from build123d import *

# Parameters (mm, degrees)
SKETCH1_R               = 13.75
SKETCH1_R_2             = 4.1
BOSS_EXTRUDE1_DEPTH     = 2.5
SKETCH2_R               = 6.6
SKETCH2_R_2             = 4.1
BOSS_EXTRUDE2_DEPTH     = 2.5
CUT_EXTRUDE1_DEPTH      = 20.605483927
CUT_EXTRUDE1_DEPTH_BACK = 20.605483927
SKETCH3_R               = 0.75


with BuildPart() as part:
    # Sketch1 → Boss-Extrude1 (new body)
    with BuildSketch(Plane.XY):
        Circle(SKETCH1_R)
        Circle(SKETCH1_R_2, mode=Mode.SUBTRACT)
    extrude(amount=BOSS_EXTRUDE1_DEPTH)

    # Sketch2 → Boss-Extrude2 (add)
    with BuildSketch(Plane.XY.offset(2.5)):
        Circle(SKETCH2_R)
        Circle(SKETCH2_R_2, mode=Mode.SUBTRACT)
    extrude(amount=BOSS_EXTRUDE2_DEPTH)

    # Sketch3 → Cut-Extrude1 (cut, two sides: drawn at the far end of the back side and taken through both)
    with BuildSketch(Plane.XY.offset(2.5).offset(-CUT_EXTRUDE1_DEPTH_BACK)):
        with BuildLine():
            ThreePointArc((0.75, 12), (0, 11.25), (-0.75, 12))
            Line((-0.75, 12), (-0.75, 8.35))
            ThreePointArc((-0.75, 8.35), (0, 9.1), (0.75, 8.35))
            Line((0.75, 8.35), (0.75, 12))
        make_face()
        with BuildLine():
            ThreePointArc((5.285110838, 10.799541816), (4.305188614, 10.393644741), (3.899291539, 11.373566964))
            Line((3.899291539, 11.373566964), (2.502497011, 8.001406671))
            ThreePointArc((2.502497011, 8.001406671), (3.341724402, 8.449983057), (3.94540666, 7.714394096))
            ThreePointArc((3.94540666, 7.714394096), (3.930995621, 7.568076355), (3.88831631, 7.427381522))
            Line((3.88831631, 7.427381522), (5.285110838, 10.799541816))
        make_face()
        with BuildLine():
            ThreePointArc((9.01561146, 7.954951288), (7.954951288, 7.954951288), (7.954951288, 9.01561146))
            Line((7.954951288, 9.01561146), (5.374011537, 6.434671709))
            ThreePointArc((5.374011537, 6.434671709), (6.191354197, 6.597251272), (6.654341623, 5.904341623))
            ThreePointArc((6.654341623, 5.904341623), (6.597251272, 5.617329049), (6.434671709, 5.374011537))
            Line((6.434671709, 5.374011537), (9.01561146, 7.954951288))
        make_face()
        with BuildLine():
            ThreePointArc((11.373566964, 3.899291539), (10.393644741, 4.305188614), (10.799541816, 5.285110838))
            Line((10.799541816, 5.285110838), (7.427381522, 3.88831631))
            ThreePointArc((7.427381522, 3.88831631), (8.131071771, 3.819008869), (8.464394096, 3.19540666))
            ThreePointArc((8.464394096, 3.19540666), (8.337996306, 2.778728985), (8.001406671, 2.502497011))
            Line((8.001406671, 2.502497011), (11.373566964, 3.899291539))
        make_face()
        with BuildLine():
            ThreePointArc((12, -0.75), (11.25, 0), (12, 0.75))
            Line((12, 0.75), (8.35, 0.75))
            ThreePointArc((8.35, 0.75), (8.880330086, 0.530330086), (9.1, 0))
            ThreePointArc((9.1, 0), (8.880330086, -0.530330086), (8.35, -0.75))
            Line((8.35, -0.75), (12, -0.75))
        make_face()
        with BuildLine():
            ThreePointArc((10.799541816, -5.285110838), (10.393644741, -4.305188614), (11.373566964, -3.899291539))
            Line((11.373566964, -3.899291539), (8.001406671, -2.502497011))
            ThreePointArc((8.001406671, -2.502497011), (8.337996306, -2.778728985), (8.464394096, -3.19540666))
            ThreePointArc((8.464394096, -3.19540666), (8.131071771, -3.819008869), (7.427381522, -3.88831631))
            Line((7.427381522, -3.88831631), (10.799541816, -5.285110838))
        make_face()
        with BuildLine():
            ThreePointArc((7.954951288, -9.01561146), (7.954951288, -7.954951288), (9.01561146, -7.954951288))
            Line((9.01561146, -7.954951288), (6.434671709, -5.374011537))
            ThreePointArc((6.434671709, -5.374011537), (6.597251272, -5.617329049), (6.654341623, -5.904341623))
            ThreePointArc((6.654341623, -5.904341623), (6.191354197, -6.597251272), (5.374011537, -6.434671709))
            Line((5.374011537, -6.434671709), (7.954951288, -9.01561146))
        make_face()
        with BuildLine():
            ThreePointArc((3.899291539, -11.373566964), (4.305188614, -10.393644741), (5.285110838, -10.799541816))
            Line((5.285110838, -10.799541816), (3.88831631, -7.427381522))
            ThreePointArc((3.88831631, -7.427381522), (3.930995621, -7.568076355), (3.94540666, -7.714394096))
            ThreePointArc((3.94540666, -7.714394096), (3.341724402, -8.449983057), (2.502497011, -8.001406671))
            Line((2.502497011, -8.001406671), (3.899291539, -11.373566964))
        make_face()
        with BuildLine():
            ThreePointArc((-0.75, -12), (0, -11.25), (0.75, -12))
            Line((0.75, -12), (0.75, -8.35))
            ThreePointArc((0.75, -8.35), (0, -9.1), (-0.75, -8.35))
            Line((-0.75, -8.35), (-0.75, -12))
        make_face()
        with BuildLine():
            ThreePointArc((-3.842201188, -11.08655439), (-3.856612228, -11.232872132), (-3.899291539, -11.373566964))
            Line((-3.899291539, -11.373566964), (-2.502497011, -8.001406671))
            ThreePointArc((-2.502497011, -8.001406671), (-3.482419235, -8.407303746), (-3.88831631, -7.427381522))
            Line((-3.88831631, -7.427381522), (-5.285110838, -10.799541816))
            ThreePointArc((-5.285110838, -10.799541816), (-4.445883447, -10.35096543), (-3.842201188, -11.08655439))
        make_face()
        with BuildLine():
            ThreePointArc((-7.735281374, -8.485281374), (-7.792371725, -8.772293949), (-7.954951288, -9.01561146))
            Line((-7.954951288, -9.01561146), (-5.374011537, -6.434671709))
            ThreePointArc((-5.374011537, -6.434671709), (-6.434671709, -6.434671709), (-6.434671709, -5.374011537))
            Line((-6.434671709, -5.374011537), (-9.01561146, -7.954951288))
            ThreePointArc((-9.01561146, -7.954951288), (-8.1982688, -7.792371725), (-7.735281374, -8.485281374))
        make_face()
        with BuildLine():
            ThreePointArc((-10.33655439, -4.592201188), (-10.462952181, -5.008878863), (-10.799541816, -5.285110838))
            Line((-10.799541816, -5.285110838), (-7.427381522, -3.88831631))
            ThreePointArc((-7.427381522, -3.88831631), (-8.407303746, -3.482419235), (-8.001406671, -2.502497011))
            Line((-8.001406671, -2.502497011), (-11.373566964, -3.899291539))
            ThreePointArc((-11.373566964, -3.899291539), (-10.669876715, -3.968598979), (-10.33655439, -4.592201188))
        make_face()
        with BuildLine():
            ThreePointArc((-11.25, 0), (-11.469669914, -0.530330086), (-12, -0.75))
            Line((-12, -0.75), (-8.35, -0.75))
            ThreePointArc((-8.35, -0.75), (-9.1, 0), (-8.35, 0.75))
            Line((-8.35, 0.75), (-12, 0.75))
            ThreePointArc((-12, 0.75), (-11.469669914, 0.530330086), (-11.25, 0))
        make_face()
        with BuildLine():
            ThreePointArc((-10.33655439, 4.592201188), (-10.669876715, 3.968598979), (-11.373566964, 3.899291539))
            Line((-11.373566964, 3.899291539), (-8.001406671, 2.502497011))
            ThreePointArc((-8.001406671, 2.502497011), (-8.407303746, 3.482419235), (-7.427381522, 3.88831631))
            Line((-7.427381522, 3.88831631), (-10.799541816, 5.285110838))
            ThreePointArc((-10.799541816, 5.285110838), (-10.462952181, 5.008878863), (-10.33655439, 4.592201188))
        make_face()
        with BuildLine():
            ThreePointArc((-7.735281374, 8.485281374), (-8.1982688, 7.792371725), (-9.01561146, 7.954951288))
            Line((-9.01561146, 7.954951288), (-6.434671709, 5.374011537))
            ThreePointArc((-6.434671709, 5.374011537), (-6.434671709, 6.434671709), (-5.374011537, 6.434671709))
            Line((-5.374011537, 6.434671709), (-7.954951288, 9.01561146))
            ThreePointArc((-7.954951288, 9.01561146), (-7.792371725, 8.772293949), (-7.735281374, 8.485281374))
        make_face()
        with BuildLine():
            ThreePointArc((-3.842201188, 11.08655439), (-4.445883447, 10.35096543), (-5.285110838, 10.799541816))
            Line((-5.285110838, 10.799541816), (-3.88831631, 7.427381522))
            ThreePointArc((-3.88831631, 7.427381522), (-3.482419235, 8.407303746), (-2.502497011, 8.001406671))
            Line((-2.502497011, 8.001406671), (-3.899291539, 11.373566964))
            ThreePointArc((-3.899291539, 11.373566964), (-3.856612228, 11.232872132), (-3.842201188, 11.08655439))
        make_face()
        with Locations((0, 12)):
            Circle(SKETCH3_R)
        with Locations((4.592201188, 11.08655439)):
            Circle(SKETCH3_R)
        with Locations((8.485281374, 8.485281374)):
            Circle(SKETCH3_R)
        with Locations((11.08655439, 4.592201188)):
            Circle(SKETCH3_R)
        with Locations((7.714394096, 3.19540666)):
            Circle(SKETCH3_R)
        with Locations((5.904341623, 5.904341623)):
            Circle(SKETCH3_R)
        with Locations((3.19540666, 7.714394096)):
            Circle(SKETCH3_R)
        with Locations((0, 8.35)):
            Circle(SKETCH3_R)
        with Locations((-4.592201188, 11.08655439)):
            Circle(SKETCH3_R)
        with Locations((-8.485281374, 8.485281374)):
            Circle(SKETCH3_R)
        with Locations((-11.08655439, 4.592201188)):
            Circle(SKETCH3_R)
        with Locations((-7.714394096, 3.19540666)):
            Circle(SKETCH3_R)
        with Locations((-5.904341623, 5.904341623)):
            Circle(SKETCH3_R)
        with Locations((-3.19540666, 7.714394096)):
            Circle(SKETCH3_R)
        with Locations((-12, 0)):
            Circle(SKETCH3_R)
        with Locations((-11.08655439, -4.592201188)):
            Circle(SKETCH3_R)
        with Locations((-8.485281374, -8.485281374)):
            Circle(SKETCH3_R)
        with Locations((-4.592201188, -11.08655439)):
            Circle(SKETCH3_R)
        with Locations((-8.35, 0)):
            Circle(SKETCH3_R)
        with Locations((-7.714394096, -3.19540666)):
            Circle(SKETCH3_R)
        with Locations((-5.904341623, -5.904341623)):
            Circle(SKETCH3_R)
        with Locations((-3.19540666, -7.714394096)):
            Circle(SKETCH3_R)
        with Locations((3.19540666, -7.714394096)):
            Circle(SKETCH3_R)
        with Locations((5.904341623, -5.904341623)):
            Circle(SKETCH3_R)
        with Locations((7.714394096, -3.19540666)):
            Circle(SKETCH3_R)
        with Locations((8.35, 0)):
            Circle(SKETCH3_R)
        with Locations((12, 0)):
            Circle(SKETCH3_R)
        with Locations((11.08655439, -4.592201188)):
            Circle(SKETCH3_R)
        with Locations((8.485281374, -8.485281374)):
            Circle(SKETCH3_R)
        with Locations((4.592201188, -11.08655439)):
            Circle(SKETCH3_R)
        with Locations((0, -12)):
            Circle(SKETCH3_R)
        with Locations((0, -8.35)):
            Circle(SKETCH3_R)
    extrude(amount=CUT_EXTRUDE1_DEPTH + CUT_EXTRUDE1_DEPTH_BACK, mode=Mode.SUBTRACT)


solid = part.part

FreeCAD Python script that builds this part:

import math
import FreeCAD as App
import Part
import Sketcher
from FreeCAD import Vector
Q = App.Units.Quantity

doc = App.newDocument("Part")
body = doc.addObject("PartDesign::Body", "Body")

# Sketch on XY plane
sketch1 = body.newObject("Sketcher::SketchObject", "Sketch")
sketch1.AttachmentSupport = (doc.getObject("XY_Plane"), [""])
sketch1.MapMode = "FlatFace"
sketch1.addGeometry(Part.Circle(Vector(0, 0, 0), Vector(0, 0, 1), 13.8), False)
sketch1.addGeometry(Part.Circle(Vector(0, 0, 0), Vector(0, 0, 1), 4.1), False)
sketch1.addConstraint(Sketcher.Constraint("Coincident", 0, 3, -1, 1))
sketch1.addConstraint(Sketcher.Constraint("Coincident", 1, 3, -1, 1))
sketch1.addConstraint(Sketcher.Constraint("Diameter", 0, 27.5))
sketch1.addConstraint(Sketcher.Constraint("Diameter", 1, 8.2))
pad1 = body.newObject("PartDesign::Pad", "Pad")
pad1.Profile = sketch1
pad1.Length = 2.5

# Sketch on XY plane
sketch2 = body.newObject("Sketcher::SketchObject", "Sketch001")
sketch2.AttachmentSupport = (doc.getObject("XY_Plane"), [""])
sketch2.MapMode = "FlatFace"
sketch2.AttachmentOffset = App.Placement(Vector(0, 0, 2.5), App.Rotation())
sketch2.addGeometry(Part.Circle(Vector(0, 0, 0), Vector(0, 0, 1), 6.6), False)
sketch2.addGeometry(Part.Circle(Vector(0, 0, 0), Vector(0, 0, 1), 4.1), False)
sketch2.addConstraint(Sketcher.Constraint("Coincident", 0, 3, -1, 1))
sketch2.addConstraint(Sketcher.Constraint("Coincident", 1, 3, -1, 1))
sketch2.addConstraint(Sketcher.Constraint("Diameter", 0, 13.2))
sketch2.addConstraint(Sketcher.Constraint("Diameter", 1, 8.2))
pad2 = body.newObject("PartDesign::Pad", "Pad001")
pad2.Profile = sketch2
pad2.Length = 2.5

# Sketch on XY plane
sketch3 = body.newObject("Sketcher::SketchObject", "Sketch002")
sketch3.AttachmentSupport = (doc.getObject("XY_Plane"), [""])
sketch3.MapMode = "FlatFace"
sketch3.AttachmentOffset = App.Placement(Vector(0, 0, 2.5), App.Rotation())
sketch3.addGeometry(Part.LineSegment(Vector(-0.8, 12, 0), Vector(-0.8, 8.3, 0)), False)
sketch3.addGeometry(Part.ArcOfCircle(Part.Circle(Vector(0, 8.3, 0), Vector(0, 0, 1), 0.8), math.radians(180), math.radians(360)), False)
sketch3.addGeometry(Part.LineSegment(Vector(0.8, 8.3, 0), Vector(0.8, 12, 0)), False)
sketch3.addGeometry(Part.ArcOfCircle(Part.Circle(Vector(0, 12, 0), Vector(0, 0, 1), 0.8), math.radians(0), math.radians(180)), False)
sketch3.addGeometry(Part.LineSegment(Vector(3.9, 11.4, 0), Vector(2.5, 8, 0)), False)
sketch3.addGeometry(Part.ArcOfCircle(Part.Circle(Vector(3.2, 7.7, 0), Vector(0, 0, 1), 0.8), math.radians(157), math.radians(338)), False)
sketch3.addGeometry(Part.LineSegment(Vector(3.9, 7.4, 0), Vector(5.3, 10.8, 0)), False)
sketch3.addGeometry(Part.ArcOfCircle(Part.Circle(Vector(4.6, 11.1, 0), Vector(0, 0, 1), 0.8), math.radians(-22), math.radians(158)), False)
sketch3.addGeometry(Part.LineSegment(Vector(8, 9, 0), Vector(5.4, 6.4, 0)), False)
sketch3.addGeometry(Part.ArcOfCircle(Part.Circle(Vector(5.9, 5.9, 0), Vector(0, 0, 1), 0.8), math.radians(135), math.radians(315)), False)
sketch3.addGeometry(Part.LineSegment(Vector(6.4, 5.4, 0), Vector(9, 8, 0)), False)
sketch3.addGeometry(Part.ArcOfCircle(Part.Circle(Vector(8.5, 8.5, 0), Vector(0, 0, 1), 0.8), math.radians(-45), math.radians(135)), False)
sketch3.addGeometry(Part.LineSegment(Vector(10.8, 5.3, 0), Vector(7.4, 3.9, 0)), False)
sketch3.addGeometry(Part.ArcOfCircle(Part.Circle(Vector(7.7, 3.2, 0), Vector(0, 0, 1), 0.8), math.radians(112), math.radians(293)), False)
sketch3.addGeometry(Part.LineSegment(Vector(8, 2.5, 0), Vector(11.4, 3.9, 0)), False)
sketch3.addGeometry(Part.ArcOfCircle(Part.Circle(Vector(11.1, 4.6, 0), Vector(0, 0, 1), 0.8), math.radians(-68), math.radians(112)), False)
sketch3.addGeometry(Part.LineSegment(Vector(12, 0.8, 0), Vector(8.3, 0.8, 0)), False)
sketch3.addGeometry(Part.ArcOfCircle(Part.Circle(Vector(8.3, 0, 0), Vector(0, 0, 1), 0.8), math.radians(90), math.radians(270)), False)
sketch3.addGeometry(Part.LineSegment(Vector(8.3, -0.8, 0), Vector(12, -0.8, 0)), False)
sketch3.addGeometry(Part.ArcOfCircle(Part.Circle(Vector(12, 0, 0), Vector(0, 0, 1), 0.8), math.radians(-90), math.radians(90)), False)
sketch3.addGeometry(Part.LineSegment(Vector(11.4, -3.9, 0), Vector(8, -2.5, 0)), False)
sketch3.addGeometry(Part.ArcOfCircle(Part.Circle(Vector(7.7, -3.2, 0), Vector(0, 0, 1), 0.8), math.radians(67), math.radians(248)), False)
sketch3.addGeometry(Part.LineSegment(Vector(7.4, -3.9, 0), Vector(10.8, -5.3, 0)), False)
sketch3.addGeometry(Part.ArcOfCircle(Part.Circle(Vector(11.1, -4.6, 0), Vector(0, 0, 1), 0.8), math.radians(-112), math.radians(68)), False)
sketch3.addGeometry(Part.LineSegment(Vector(9, -8, 0), Vector(6.4, -5.4, 0)), False)
sketch3.addGeometry(Part.ArcOfCircle(Part.Circle(Vector(5.9, -5.9, 0), Vector(0, 0, 1), 0.8), math.radians(45), math.radians(225)), False)
sketch3.addGeometry(Part.LineSegment(Vector(5.4, -6.4, 0), Vector(8, -9, 0)), False)
sketch3.addGeometry(Part.ArcOfCircle(Part.Circle(Vector(8.5, -8.5, 0), Vector(0, 0, 1), 0.8), math.radians(-135), math.radians(45)), False)
sketch3.addGeometry(Part.LineSegment(Vector(5.3, -10.8, 0), Vector(3.9, -7.4, 0)), False)
sketch3.addGeometry(Part.ArcOfCircle(Part.Circle(Vector(3.2, -7.7, 0), Vector(0, 0, 1), 0.8), math.radians(22), math.radians(203)), False)
sketch3.addGeometry(Part.LineSegment(Vector(2.5, -8, 0), Vector(3.9, -11.4, 0)), False)
sketch3.addGeometry(Part.ArcOfCircle(Part.Circle(Vector(4.6, -11.1, 0), Vector(0, 0, 1), 0.8), math.radians(-158), math.radians(22)), False)
sketch3.addGeometry(Part.LineSegment(Vector(0.8, -12, 0), Vector(0.8, -8.3, 0)), False)
sketch3.addGeometry(Part.ArcOfCircle(Part.Circle(Vector(0, -8.3, 0), Vector(0, 0, 1), 0.8), math.radians(0), math.radians(180)), False)
sketch3.addGeometry(Part.LineSegment(Vector(-0.8, -8.3, 0), Vector(-0.8, -12, 0)), False)
sketch3.addGeometry(Part.ArcOfCircle(Part.Circle(Vector(0, -12, 0), Vector(0, 0, 1), 0.8), math.radians(180), math.radians(360)), False)
sketch3.addGeometry(Part.LineSegment(Vector(-3.9, -11.4, 0), Vector(-2.5, -8, 0)), False)
sketch3.addGeometry(Part.ArcOfCircle(Part.Circle(Vector(-3.2, -7.7, 0), Vector(0, 0, 1), 0.8), math.radians(-23), math.radians(158)), False)
sketch3.addGeometry(Part.LineSegment(Vector(-3.9, -7.4, 0), Vector(-5.3, -10.8, 0)), False)
sketch3.addGeometry(Part.ArcOfCircle(Part.Circle(Vector(-4.6, -11.1, 0), Vector(0, 0, 1), 0.8), math.radians(158), math.radians(338)), False)
sketch3.addGeometry(Part.LineSegment(Vector(-8, -9, 0), Vector(-5.4, -6.4, 0)), False)
sketch3.addGeometry(Part.ArcOfCircle(Part.Circle(Vector(-5.9, -5.9, 0), Vector(0, 0, 1), 0.8), math.radians(-45), math.radians(135)), False)
sketch3.addGeometry(Part.LineSegment(Vector(-6.4, -5.4, 0), Vector(-9, -8, 0)), False)
sketch3.addGeometry(Part.ArcOfCircle(Part.Circle(Vector(-8.5, -8.5, 0), Vector(0, 0, 1), 0.8), math.radians(135), math.radians(315)), False)
sketch3.addGeometry(Part.LineSegment(Vector(-10.8, -5.3, 0), Vector(-7.4, -3.9, 0)), False)
sketch3.addGeometry(Part.ArcOfCircle(Part.Circle(Vector(-7.7, -3.2, 0), Vector(0, 0, 1), 0.8), math.radians(-68), math.radians(113)), False)
sketch3.addGeometry(Part.LineSegment(Vector(-8, -2.5, 0), Vector(-11.4, -3.9, 0)), False)
sketch3.addGeometry(Part.ArcOfCircle(Part.Circle(Vector(-11.1, -4.6, 0), Vector(0, 0, 1), 0.8), math.radians(112), math.radians(292)), False)
sketch3.addGeometry(Part.LineSegment(Vector(-12, -0.8, 0), Vector(-8.3, -0.8, 0)), False)
sketch3.addGeometry(Part.ArcOfCircle(Part.Circle(Vector(-8.3, 0, 0), Vector(0, 0, 1), 0.8), math.radians(-90), math.radians(90)), False)
sketch3.addGeometry(Part.LineSegment(Vector(-8.3, 0.8, 0), Vector(-12, 0.8, 0)), False)
sketch3.addGeometry(Part.ArcOfCircle(Part.Circle(Vector(-12, 0, 0), Vector(0, 0, 1), 0.8), math.radians(90), math.radians(270)), False)
sketch3.addGeometry(Part.LineSegment(Vector(-11.4, 3.9, 0), Vector(-8, 2.5, 0)), False)
sketch3.addGeometry(Part.ArcOfCircle(Part.Circle(Vector(-7.7, 3.2, 0), Vector(0, 0, 1), 0.8), math.radians(-113), math.radians(68)), False)
sketch3.addGeometry(Part.LineSegment(Vector(-7.4, 3.9, 0), Vector(-10.8, 5.3, 0)), False)
sketch3.addGeometry(Part.ArcOfCircle(Part.Circle(Vector(-11.1, 4.6, 0), Vector(0, 0, 1), 0.8), math.radians(68), math.radians(248)), False)
sketch3.addGeometry(Part.LineSegment(Vector(-9, 8, 0), Vector(-6.4, 5.4, 0)), False)
sketch3.addGeometry(Part.ArcOfCircle(Part.Circle(Vector(-5.9, 5.9, 0), Vector(0, 0, 1), 0.8), math.radians(-135), math.radians(45)), False)
sketch3.addGeometry(Part.LineSegment(Vector(-5.4, 6.4, 0), Vector(-8, 9, 0)), False)
sketch3.addGeometry(Part.ArcOfCircle(Part.Circle(Vector(-8.5, 8.5, 0), Vector(0, 0, 1), 0.8), math.radians(45), math.radians(225)), False)
sketch3.addGeometry(Part.LineSegment(Vector(-5.3, 10.8, 0), Vector(-3.9, 7.4, 0)), False)
sketch3.addGeometry(Part.ArcOfCircle(Part.Circle(Vector(-3.2, 7.7, 0), Vector(0, 0, 1), 0.8), math.radians(-158), math.radians(23)), False)
sketch3.addGeometry(Part.LineSegment(Vector(-2.5, 8, 0), Vector(-3.9, 11.4, 0)), False)
sketch3.addGeometry(Part.ArcOfCircle(Part.Circle(Vector(-4.6, 11.1, 0), Vector(0, 0, 1), 0.8), math.radians(22), math.radians(202)), False)
sketch3.addConstraint(Sketcher.Constraint("Tangent", 0, 2, 1, 1))
sketch3.addConstraint(Sketcher.Constraint("Tangent", 1, 2, 2, 1))
sketch3.addConstraint(Sketcher.Constraint("Tangent", 2, 2, 3, 1))
sketch3.addConstraint(Sketcher.Constraint("Tangent", 3, 2, 0, 1))
sketch3.addConstraint(Sketcher.Constraint("Tangent", 4, 2, 5, 1))
sketch3.addConstraint(Sketcher.Constraint("Tangent", 5, 2, 6, 1))
sketch3.addConstraint(Sketcher.Constraint("Tangent", 6, 2, 7, 1))
sketch3.addConstraint(Sketcher.Constraint("Tangent", 7, 2, 4, 1))
sketch3.addConstraint(Sketcher.Constraint("Tangent", 8, 2, 9, 1))
sketch3.addConstraint(Sketcher.Constraint("Tangent", 9, 2, 10, 1))
sketch3.addConstraint(Sketcher.Constraint("Tangent", 10, 2, 11, 1))
sketch3.addConstraint(Sketcher.Constraint("Tangent", 11, 2, 8, 1))
sketch3.addConstraint(Sketcher.Constraint("Tangent", 12, 2, 13, 1))
sketch3.addConstraint(Sketcher.Constraint("Tangent", 13, 2, 14, 1))
sketch3.addConstraint(Sketcher.Constraint("Tangent", 14, 2, 15, 1))
sketch3.addConstraint(Sketcher.Constraint("Tangent", 15, 2, 12, 1))
sketch3.addConstraint(Sketcher.Constraint("Tangent", 16, 2, 17, 1))
sketch3.addConstraint(Sketcher.Constraint("Tangent", 17, 2, 18, 1))
sketch3.addConstraint(Sketcher.Constraint("Tangent", 18, 2, 19, 1))
sketch3.addConstraint(Sketcher.Constraint("Tangent", 19, 2, 16, 1))
sketch3.addConstraint(Sketcher.Constraint("Tangent", 20, 2, 21, 1))
sketch3.addConstraint(Sketcher.Constraint("Tangent", 21, 2, 22, 1))
sketch3.addConstraint(Sketcher.Constraint("Tangent", 22, 2, 23, 1))
sketch3.addConstraint(Sketcher.Constraint("Tangent", 23, 2, 20, 1))
sketch3.addConstraint(Sketcher.Constraint("Tangent", 24, 2, 25, 1))
sketch3.addConstraint(Sketcher.Constraint("Tangent", 25, 2, 26, 1))
sketch3.addConstraint(Sketcher.Constraint("Tangent", 26, 2, 27, 1))
sketch3.addConstraint(Sketcher.Constraint("Tangent", 27, 2, 24, 1))
sketch3.addConstraint(Sketcher.Constraint("Tangent", 28, 2, 29, 1))
sketch3.addConstraint(Sketcher.Constraint("Tangent", 29, 2, 30, 1))
sketch3.addConstraint(Sketcher.Constraint("Tangent", 30, 2, 31, 1))
sketch3.addConstraint(Sketcher.Constraint("Tangent", 31, 2, 28, 1))
sketch3.addConstraint(Sketcher.Constraint("Tangent", 32, 2, 33, 1))
sketch3.addConstraint(Sketcher.Constraint("Tangent", 33, 2, 34, 1))
sketch3.addConstraint(Sketcher.Constraint("Tangent", 34, 2, 35, 1))
sketch3.addConstraint(Sketcher.Constraint("Tangent", 35, 2, 32, 1))
sketch3.addConstraint(Sketcher.Constraint("Tangent", 36, 2, 37, 1))
sketch3.addConstraint(Sketcher.Constraint("Tangent", 37, 2, 38, 1))
sketch3.addConstraint(Sketcher.Constraint("Tangent", 38, 2, 39, 1))
sketch3.addConstraint(Sketcher.Constraint("Tangent", 39, 2, 36, 1))
sketch3.addConstraint(Sketcher.Constraint("Tangent", 40, 2, 41, 1))
sketch3.addConstraint(Sketcher.Constraint("Tangent", 41, 2, 42, 1))
sketch3.addConstraint(Sketcher.Constraint("Tangent", 42, 2, 43, 1))
sketch3.addConstraint(Sketcher.Constraint("Tangent", 43, 2, 40, 1))
sketch3.addConstraint(Sketcher.Constraint("Tangent", 44, 2, 45, 1))
sketch3.addConstraint(Sketcher.Constraint("Tangent", 45, 2, 46, 1))
sketch3.addConstraint(Sketcher.Constraint("Tangent", 46, 2, 47, 1))
sketch3.addConstraint(Sketcher.Constraint("Tangent", 47, 2, 44, 1))
sketch3.addConstraint(Sketcher.Constraint("Tangent", 48, 2, 49, 1))
sketch3.addConstraint(Sketcher.Constraint("Tangent", 49, 2, 50, 1))
sketch3.addConstraint(Sketcher.Constraint("Tangent", 50, 2, 51, 1))
sketch3.addConstraint(Sketcher.Constraint("Tangent", 51, 2, 48, 1))
sketch3.addConstraint(Sketcher.Constraint("Tangent", 52, 2, 53, 1))
sketch3.addConstraint(Sketcher.Constraint("Tangent", 53, 2, 54, 1))
sketch3.addConstraint(Sketcher.Constraint("Tangent", 54, 2, 55, 1))
sketch3.addConstraint(Sketcher.Constraint("Tangent", 55, 2, 52, 1))
sketch3.addConstraint(Sketcher.Constraint("Tangent", 56, 2, 57, 1))
sketch3.addConstraint(Sketcher.Constraint("Tangent", 57, 2, 58, 1))
sketch3.addConstraint(Sketcher.Constraint("Tangent", 58, 2, 59, 1))
sketch3.addConstraint(Sketcher.Constraint("Tangent", 59, 2, 56, 1))
sketch3.addConstraint(Sketcher.Constraint("Tangent", 60, 2, 61, 1))
sketch3.addConstraint(Sketcher.Constraint("Tangent", 61, 2, 62, 1))
sketch3.addConstraint(Sketcher.Constraint("Tangent", 62, 2, 63, 1))
sketch3.addConstraint(Sketcher.Constraint("Tangent", 63, 2, 60, 1))
sketch3.addConstraint(Sketcher.Constraint("Vertical", 0))
sketch3.addConstraint(Sketcher.Constraint("Vertical", 2))
sketch3.addConstraint(Sketcher.Constraint("Horizontal", 16))
sketch3.addConstraint(Sketcher.Constraint("Horizontal", 18))
sketch3.addConstraint(Sketcher.Constraint("Vertical", 32))
sketch3.addConstraint(Sketcher.Constraint("Vertical", 34))
sketch3.addConstraint(Sketcher.Constraint("Horizontal", 48))
sketch3.addConstraint(Sketcher.Constraint("Horizontal", 50))
sketch3.addConstraint(Sketcher.Constraint("Equal", 3, 5))
sketch3.addConstraint(Sketcher.Constraint("Equal", 5, 7))
sketch3.addConstraint(Sketcher.Constraint("Equal", 7, 9))
sketch3.addConstraint(Sketcher.Constraint("Equal", 9, 11))
sketch3.addConstraint(Sketcher.Constraint("Equal", 11, 13))
sketch3.addConstraint(Sketcher.Constraint("Equal", 13, 15))
sketch3.addConstraint(Sketcher.Constraint("Equal", 15, 17))
sketch3.addConstraint(Sketcher.Constraint("Equal", 19, 21))
sketch3.addConstraint(Sketcher.Constraint("Equal", 21, 23))
sketch3.addConstraint(Sketcher.Constraint("Equal", 23, 25))
sketch3.addConstraint(Sketcher.Constraint("Equal", 25, 27))
sketch3.addConstraint(Sketcher.Constraint("Equal", 27, 29))
sketch3.addConstraint(Sketcher.Constraint("Equal", 29, 31))
sketch3.addConstraint(Sketcher.Constraint("Equal", 31, 33))
sketch3.addConstraint(Sketcher.Constraint("Equal", 35, 37))
sketch3.addConstraint(Sketcher.Constraint("Equal", 37, 39))
sketch3.addConstraint(Sketcher.Constraint("Equal", 39, 41))
sketch3.addConstraint(Sketcher.Constraint("Equal", 41, 43))
sketch3.addConstraint(Sketcher.Constraint("Equal", 43, 45))
sketch3.addConstraint(Sketcher.Constraint("Equal", 45, 47))
sketch3.addConstraint(Sketcher.Constraint("Equal", 47, 49))
sketch3.addConstraint(Sketcher.Constraint("Equal", 51, 53))
sketch3.addConstraint(Sketcher.Constraint("Equal", 53, 55))
sketch3.addConstraint(Sketcher.Constraint("Equal", 55, 57))
sketch3.addConstraint(Sketcher.Constraint("Equal", 57, 59))
sketch3.addConstraint(Sketcher.Constraint("Equal", 59, 61))
sketch3.addConstraint(Sketcher.Constraint("Equal", 61, 63))
sketch3.addConstraint(Sketcher.Constraint("Symmetric", 1, 3, 33, 3, -1, 1))
sketch3.addConstraint(Sketcher.Constraint("Symmetric", 5, 3, 37, 3, -1, 1))
sketch3.addConstraint(Sketcher.Constraint("Symmetric", 7, 3, 39, 3, -1, 1))
sketch3.addConstraint(Sketcher.Constraint("Symmetric", 9, 3, 41, 3, -1, 1))
sketch3.addConstraint(Sketcher.Constraint("Symmetric", 11, 3, 43, 3, -1, 1))
sketch3.addConstraint(Sketcher.Constraint("Symmetric", 13, 3, 45, 3, -1, 1))
sketch3.addConstraint(Sketcher.Constraint("Symmetric", 15, 3, 47, 3, -1, 1))
sketch3.addConstraint(Sketcher.Constraint("Symmetric", 17, 3, 49, 3, -1, 1))
sketch3.addConstraint(Sketcher.Constraint("Symmetric", 21, 3, 53, 3, -1, 1))
sketch3.addConstraint(Sketcher.Constraint("Symmetric", 23, 3, 55, 3, -1, 1))
sketch3.addConstraint(Sketcher.Constraint("Symmetric", 25, 3, 57, 3, -1, 1))
sketch3.addConstraint(Sketcher.Constraint("Symmetric", 27, 3, 59, 3, -1, 1))
sketch3.addConstraint(Sketcher.Constraint("Symmetric", 29, 3, 61, 3, -1, 1))
sketch3.addConstraint(Sketcher.Constraint("Symmetric", 31, 3, 63, 3, -1, 1))
sketch3.addConstraint(Sketcher.Constraint("Symmetric", 29, 3, 37, 3, -2))
sketch3.addConstraint(Sketcher.Constraint("Symmetric", 31, 3, 39, 3, -2))
sketch3.addConstraint(Sketcher.Constraint("Symmetric", 25, 3, 41, 3, -2))
sketch3.addConstraint(Sketcher.Constraint("Symmetric", 27, 3, 43, 3, -2))
sketch3.addConstraint(Sketcher.Constraint("Symmetric", 21, 3, 45, 3, -2))
sketch3.addConstraint(Sketcher.Constraint("Symmetric", 23, 3, 47, 3, -2))
sketch3.addConstraint(Sketcher.Constraint("Symmetric", 19, 3, 51, 3, -2))
sketch3.addConstraint(Sketcher.Constraint("Symmetric", 3, 3, 35, 3, -1))
sketch3.addConstraint(Sketcher.Constraint("Perpendicular", 6, 20))
sketch3.addConstraint(Sketcher.Constraint("Perpendicular", 10, 24))
sketch3.addConstraint(Sketcher.Constraint("Equal", 50, 0))
sketch3.addConstraint(Sketcher.Constraint("Equal", 6, 8))
sketch3.addConstraint(Sketcher.Constraint("Equal", 10, 12))
sketch3.addConstraint(Sketcher.Constraint("Radius", 1, 0.75))
sketch3.addConstraint(Sketcher.Constraint("DistanceY", -1, 1, 3, 3, 12.0))
sketch3.addConstraint(Sketcher.Constraint("DistanceX", -1, 1, 19, 3, 12.0))
sketch3.addConstraint(Sketcher.Constraint("Angle", 4, Q("-112.5 deg")))
sketch3.addConstraint(Sketcher.Constraint("DistanceX", 16, 2, 16, 1, 3.65))
sketch3.addConstraint(Sketcher.Constraint("Distance", 4, 3.65))
sketch3.addConstraint(Sketcher.Constraint("DistanceX", -1, 1, 7, 3, 4.592201))
sketch3.addConstraint(Sketcher.Constraint("DistanceY", -1, 1, 15, 3, 4.592201))
sketch3.addConstraint(Sketcher.Constraint("DistanceX", -1, 1, 9, 3, 5.904342))
sketch3.addConstraint(Sketcher.Constraint("DistanceY", -1, 1, 9, 3, 5.904342))
sketch3.addConstraint(Sketcher.Constraint("DistanceY", -1, 1, 5, 2, 7.427382))
sketch3.addConstraint(Sketcher.Constraint("DistanceX", -1, 1, 12, 2, 7.427382))
pocket1 = body.newObject("PartDesign::Pocket", "Pocket")
pocket1.Profile = sketch3
pocket1.Type = "ThroughAll"
pocket1.Midplane = True

doc.recompute()
